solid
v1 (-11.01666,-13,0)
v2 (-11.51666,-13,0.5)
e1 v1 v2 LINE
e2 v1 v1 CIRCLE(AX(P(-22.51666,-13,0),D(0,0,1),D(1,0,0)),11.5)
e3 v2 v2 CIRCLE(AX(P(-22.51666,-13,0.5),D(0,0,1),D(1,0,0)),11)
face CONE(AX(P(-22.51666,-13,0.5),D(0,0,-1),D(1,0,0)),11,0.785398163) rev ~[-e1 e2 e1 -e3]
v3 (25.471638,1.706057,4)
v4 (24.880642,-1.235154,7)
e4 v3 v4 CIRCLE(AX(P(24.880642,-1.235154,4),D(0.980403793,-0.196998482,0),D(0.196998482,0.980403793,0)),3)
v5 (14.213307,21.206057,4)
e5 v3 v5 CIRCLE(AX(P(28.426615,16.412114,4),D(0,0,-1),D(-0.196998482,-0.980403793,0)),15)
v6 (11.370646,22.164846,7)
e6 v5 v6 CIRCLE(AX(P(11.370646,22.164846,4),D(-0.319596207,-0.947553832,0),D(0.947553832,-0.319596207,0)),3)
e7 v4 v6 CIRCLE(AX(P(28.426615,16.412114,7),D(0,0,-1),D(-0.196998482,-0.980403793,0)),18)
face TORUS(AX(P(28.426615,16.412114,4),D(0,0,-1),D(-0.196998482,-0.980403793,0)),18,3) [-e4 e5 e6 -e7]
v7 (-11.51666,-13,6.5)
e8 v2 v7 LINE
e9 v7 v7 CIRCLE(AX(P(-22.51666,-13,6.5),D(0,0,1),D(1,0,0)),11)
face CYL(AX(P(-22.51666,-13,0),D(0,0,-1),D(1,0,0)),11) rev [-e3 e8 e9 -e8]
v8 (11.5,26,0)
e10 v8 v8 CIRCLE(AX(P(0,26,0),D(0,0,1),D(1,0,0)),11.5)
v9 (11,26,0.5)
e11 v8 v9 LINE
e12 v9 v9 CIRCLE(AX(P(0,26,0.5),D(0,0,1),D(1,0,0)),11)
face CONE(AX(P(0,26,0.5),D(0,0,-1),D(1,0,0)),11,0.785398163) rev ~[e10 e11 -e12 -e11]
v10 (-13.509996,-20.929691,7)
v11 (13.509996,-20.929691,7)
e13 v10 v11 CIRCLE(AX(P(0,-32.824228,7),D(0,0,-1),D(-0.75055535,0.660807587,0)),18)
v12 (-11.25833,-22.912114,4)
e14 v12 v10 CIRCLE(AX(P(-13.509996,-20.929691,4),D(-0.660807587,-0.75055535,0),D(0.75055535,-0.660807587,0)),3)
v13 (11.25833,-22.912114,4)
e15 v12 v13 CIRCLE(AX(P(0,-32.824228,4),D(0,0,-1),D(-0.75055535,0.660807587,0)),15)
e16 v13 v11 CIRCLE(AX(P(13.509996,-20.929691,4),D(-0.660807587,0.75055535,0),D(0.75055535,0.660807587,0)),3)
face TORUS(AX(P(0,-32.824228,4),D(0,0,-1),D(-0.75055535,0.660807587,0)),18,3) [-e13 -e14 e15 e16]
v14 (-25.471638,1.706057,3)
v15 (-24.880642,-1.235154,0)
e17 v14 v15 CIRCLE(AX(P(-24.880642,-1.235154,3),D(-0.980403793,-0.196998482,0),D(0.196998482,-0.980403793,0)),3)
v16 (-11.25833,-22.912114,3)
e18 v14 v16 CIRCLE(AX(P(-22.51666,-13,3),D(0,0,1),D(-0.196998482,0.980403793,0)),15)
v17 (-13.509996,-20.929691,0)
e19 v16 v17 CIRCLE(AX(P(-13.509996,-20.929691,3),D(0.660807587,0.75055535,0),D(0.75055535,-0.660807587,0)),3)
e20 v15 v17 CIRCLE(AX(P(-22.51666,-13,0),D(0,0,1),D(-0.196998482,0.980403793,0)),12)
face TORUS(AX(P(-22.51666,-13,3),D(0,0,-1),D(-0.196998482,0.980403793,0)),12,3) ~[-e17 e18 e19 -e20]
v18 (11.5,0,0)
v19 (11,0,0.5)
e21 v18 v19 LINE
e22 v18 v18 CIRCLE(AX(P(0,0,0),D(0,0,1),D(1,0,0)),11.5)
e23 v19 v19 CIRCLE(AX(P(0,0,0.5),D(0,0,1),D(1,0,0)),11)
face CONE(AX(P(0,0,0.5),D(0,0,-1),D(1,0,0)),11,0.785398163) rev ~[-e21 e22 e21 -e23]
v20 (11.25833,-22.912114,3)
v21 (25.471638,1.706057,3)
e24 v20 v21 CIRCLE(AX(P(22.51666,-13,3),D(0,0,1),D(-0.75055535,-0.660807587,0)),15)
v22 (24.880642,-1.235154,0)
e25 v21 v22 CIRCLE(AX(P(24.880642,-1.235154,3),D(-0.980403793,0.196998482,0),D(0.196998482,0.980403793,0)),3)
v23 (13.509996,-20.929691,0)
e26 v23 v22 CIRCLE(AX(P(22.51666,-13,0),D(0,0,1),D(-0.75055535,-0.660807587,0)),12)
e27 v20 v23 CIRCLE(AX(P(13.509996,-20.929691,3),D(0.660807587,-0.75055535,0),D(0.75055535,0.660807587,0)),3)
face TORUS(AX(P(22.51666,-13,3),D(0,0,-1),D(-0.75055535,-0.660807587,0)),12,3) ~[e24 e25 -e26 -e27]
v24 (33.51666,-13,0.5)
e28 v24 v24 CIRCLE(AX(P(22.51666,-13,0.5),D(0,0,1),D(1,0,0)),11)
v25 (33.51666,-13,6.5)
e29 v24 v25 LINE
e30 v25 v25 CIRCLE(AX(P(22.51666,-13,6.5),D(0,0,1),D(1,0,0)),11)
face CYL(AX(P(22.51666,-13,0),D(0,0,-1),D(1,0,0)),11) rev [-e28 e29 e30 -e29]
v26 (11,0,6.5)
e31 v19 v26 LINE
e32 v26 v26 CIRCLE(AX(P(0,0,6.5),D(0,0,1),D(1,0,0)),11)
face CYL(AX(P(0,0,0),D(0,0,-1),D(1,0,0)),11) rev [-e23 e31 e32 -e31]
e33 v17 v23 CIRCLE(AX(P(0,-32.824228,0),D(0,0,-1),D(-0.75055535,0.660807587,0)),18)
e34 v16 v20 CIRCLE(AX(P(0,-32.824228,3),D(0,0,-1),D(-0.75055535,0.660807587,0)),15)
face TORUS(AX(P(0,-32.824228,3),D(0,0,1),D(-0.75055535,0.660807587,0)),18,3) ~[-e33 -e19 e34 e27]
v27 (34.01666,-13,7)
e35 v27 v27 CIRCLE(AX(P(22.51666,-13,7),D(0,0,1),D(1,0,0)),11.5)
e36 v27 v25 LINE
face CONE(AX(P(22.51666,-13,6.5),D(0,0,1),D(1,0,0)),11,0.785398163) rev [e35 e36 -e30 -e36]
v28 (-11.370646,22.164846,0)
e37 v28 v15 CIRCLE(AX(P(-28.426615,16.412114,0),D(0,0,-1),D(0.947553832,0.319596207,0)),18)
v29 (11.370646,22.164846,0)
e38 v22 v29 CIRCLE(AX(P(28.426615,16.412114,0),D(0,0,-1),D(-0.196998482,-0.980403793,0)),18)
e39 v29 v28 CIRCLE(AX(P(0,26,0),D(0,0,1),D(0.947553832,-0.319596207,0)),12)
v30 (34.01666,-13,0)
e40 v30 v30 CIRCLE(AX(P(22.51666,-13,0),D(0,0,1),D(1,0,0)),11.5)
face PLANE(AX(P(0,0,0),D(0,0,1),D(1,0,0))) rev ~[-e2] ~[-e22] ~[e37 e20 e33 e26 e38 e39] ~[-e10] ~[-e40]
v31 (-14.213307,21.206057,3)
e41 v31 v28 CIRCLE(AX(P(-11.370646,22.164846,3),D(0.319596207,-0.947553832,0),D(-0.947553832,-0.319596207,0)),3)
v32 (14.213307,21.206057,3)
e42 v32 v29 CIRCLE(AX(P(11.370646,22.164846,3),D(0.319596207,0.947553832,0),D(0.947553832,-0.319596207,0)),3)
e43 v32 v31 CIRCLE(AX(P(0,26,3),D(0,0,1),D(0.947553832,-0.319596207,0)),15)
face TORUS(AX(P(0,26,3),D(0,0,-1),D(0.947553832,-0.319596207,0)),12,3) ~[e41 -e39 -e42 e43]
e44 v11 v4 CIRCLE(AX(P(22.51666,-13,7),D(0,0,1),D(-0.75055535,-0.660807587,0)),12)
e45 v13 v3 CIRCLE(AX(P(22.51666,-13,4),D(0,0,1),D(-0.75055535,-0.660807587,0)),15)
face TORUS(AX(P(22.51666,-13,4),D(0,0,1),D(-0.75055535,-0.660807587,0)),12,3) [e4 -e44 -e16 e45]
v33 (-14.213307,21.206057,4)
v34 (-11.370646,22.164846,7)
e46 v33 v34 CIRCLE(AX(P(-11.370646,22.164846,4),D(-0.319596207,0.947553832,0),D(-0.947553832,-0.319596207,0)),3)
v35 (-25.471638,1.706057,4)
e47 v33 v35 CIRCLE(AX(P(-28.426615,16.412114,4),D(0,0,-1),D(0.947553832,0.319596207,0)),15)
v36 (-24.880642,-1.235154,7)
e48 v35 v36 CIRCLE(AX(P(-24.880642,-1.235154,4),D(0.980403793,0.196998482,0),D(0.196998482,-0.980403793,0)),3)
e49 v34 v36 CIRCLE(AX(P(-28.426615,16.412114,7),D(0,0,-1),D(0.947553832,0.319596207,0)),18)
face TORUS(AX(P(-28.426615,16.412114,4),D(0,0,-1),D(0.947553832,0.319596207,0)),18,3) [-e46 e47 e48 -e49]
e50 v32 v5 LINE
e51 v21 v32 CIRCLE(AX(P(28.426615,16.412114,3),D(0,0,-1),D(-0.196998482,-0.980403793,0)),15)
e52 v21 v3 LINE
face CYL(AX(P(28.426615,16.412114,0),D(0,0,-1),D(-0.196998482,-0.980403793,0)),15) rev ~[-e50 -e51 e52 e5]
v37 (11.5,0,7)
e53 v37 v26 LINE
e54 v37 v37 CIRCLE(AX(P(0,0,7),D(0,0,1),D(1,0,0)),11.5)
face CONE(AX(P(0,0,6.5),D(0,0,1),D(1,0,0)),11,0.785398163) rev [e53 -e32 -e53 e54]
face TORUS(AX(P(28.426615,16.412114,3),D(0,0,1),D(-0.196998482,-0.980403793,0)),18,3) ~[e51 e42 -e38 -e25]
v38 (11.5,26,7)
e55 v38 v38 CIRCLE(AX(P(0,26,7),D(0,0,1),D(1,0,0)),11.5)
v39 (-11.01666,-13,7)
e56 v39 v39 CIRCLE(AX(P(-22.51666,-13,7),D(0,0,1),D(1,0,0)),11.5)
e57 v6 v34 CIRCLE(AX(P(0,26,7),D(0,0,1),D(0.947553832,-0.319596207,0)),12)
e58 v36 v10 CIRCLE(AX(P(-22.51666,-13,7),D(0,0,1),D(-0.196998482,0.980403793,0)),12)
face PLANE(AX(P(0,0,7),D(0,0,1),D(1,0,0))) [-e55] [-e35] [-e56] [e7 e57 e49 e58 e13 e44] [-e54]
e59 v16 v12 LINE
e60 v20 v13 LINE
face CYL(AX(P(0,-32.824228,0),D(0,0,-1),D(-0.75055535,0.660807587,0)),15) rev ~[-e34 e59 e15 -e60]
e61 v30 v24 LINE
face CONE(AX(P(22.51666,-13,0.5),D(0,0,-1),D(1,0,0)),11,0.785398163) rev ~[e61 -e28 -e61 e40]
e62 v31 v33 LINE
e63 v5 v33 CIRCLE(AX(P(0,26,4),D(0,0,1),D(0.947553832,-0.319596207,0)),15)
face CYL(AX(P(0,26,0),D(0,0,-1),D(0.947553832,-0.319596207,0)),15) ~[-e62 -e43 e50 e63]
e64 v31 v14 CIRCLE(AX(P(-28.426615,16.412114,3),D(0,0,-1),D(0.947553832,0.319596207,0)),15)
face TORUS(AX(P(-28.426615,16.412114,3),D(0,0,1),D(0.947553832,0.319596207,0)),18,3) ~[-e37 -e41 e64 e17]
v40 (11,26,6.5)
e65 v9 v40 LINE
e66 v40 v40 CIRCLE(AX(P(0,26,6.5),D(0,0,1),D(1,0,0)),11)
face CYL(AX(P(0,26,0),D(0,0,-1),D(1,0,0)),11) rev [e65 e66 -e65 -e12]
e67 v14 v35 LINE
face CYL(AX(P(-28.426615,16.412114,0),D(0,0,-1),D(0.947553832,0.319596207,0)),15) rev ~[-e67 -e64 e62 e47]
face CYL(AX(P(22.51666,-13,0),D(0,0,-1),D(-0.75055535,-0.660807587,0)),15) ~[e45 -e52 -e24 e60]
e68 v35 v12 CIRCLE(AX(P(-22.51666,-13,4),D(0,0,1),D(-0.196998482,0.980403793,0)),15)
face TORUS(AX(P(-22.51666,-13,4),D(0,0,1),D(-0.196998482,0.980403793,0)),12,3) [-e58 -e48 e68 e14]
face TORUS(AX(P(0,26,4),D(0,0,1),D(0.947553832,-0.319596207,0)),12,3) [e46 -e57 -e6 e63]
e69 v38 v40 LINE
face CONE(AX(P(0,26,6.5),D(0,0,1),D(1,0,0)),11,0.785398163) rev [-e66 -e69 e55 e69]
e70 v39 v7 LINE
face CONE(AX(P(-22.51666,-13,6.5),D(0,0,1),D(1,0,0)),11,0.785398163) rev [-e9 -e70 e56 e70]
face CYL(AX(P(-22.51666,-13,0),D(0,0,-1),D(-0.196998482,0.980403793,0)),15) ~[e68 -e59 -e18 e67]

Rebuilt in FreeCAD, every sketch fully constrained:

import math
import FreeCAD as App
import Part
import Sketcher
Q = App.Units.Quantity


def edges_at(feature, points):
    """Names of the edges that pass closest to the given points."""
    edges = feature.Shape.Edges
    near = lambda p: min(range(len(edges)), key=lambda i: edges[i].distToShape(Part.Vertex(*p))[0])
    return sorted({f"Edge{near(p) + 1}" for p in points})

doc = App.newDocument("Part")
body = doc.addObject("PartDesign::Body", "Body")

sketch1 = doc.addObject("Sketcher::SketchObject", "Sketch")
body.addObject(sketch1)
sketch1.AttachmentSupport = (doc.XY_Plane, [""])
sketch1.MapMode = "FlatFace"
sketch1.addGeometry([
    Part.ArcOfCircle(Part.Circle(App.Vector(0, 26, 0), App.Vector(0, 0, 1), 15), math.radians(-19), math.radians(199)),
    Part.ArcOfCircle(Part.Circle(App.Vector(-28, 16, 0), App.Vector(0, 0, 1), 15), math.radians(-79), math.radians(19)),
    Part.ArcOfCircle(Part.Circle(App.Vector(-23, -13, 0), App.Vector(0, 0, 1), 15), math.radians(101), math.radians(319)),
    Part.ArcOfCircle(Part.Circle(App.Vector(0, -33, 0), App.Vector(0, 0, 1), 15), math.radians(41), math.radians(139)),
    Part.ArcOfCircle(Part.Circle(App.Vector(23, -13, 0), App.Vector(0, 0, 1), 15), math.radians(-139), math.radians(79)),
    Part.ArcOfCircle(Part.Circle(App.Vector(28, 16, 0), App.Vector(0, 0, 1), 15), math.radians(161), math.radians(259)),
    Part.Circle(App.Vector(-23, -13, 0), App.Vector(0, 0, 1), 11),
    Part.Circle(App.Vector(23, -13, 0), App.Vector(0, 0, 1), 11),
    Part.Circle(App.Vector(0, 0, 0), App.Vector(0, 0, 1), 11),
    Part.Circle(App.Vector(0, 26, 0), App.Vector(0, 0, 1), 11),
], False)
sketch1.addConstraint([
    Sketcher.Constraint("Tangent", 0, 2, 1, 2),
    Sketcher.Constraint("Tangent", 1, 1, 2, 1),
    Sketcher.Constraint("Tangent", 2, 2, 3, 2),
    Sketcher.Constraint("Tangent", 3, 1, 4, 1),
    Sketcher.Constraint("Tangent", 4, 2, 5, 2),
    Sketcher.Constraint("Tangent", 5, 1, 0, 1),
    Sketcher.Constraint("Coincident", 8, 3, -1, 1),
    Sketcher.Constraint("Coincident", 6, 3, 2, 3),
    Sketcher.Constraint("Coincident", 7, 3, 4, 3),
    Sketcher.Constraint("Coincident", 9, 3, 0, 3),
    Sketcher.Constraint("Equal", 0, 1),
    Sketcher.Constraint("Equal", 1, 2),
    Sketcher.Constraint("Equal", 2, 3),
    Sketcher.Constraint("Equal", 3, 4),
    Sketcher.Constraint("Equal", 4, 5),
    Sketcher.Constraint("Equal", 6, 7),
    Sketcher.Constraint("Equal", 7, 8),
    Sketcher.Constraint("Equal", 8, 9),
    Sketcher.Constraint("Symmetric", 2, 3, 4, 3, -2),
    Sketcher.Constraint("PointOnObject", 0, 3, -2),
    Sketcher.Constraint("Diameter", 6, Q("22 mm")),
    Sketcher.Constraint("Radius", 0, Q("15 mm")),
    Sketcher.Constraint("DistanceY", -1, 1, 0, 3, Q("26 mm")),
    Sketcher.Constraint("DistanceY", 2, 3, -1, 1, Q("13 mm")),
    Sketcher.Constraint("DistanceX", 2, 3, -1, 1, Q("22.51666 mm")),
])
pad1 = doc.addObject("PartDesign::Pad", "Pad")
body.addObject(pad1)
pad1.Profile = sketch1
pad1.Length = 7
doc.recompute()

fillet = doc.addObject("PartDesign::Fillet", "Fillet")
body.addObject(fillet)
fillet.Base = (pad1, edges_at(pad1, [(0, 41, 7), (0, 41, 0)]))
fillet.Radius = 3
doc.recompute()

chamfer = doc.addObject("PartDesign::Chamfer", "Chamfer")
body.addObject(chamfer)
chamfer.Base = (fillet, edges_at(fillet, [
    (0, 38, 0),
    (12.838, 7.412, 0),
    (-12.838, 7.412, 0),
    (32.909, -19, 0),
    (-32.909, -19, 0),
    (0, -14.824, 0),
    (-33.517, -13, 0),
    (11.517, -13, 0),
    (-11, 0, 0),
    (-11, 26, 0),
    (0, 38, 7),
    (12.838, 7.412, 7),
    (-12.838, 7.412, 7),
    (32.909, -19, 7),
    (-32.909, -19, 7),
    (0, -14.824, 7),
    (-33.517, -13, 7),
    (11.517, -13, 7),
    (-11, 0, 7),
    (-11, 26, 7),
]))
chamfer.Size = 0.5

doc.recompute()
